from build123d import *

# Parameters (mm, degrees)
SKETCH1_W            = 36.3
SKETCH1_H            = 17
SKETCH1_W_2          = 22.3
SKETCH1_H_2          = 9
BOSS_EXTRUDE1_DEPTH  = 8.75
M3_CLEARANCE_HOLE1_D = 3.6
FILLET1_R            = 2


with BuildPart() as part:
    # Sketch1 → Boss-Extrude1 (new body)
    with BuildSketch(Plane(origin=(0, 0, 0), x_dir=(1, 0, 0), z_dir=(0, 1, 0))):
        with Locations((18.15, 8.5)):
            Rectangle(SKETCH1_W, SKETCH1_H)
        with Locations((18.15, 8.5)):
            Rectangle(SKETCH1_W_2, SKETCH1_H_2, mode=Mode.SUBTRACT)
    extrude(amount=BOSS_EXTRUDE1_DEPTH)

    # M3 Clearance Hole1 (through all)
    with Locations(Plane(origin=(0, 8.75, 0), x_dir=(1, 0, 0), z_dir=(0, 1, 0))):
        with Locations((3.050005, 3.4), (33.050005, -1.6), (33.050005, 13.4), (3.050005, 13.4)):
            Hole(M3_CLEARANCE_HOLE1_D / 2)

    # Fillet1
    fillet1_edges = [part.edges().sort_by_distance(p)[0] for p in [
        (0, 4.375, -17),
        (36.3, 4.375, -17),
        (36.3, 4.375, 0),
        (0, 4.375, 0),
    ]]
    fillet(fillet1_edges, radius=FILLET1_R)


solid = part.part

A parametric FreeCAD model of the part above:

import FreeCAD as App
import Part
import Sketcher

V = App.Vector


def edges_at(feature, points):
    """Names of the edges that pass closest to the given points."""
    edges = feature.Shape.Edges
    near = lambda p: min(range(len(edges)), key=lambda i: edges[i].distToShape(Part.Vertex(*p))[0])
    return sorted({f"Edge{near(p) + 1}" for p in points})


def add_polygon(sketch, points):
    """Adds a closed chain of lines whose ends are joined by coincident constraints."""
    first, n = sketch.GeometryCount, len(points)
    for a, b in zip(points, points[1:] + points[:1]):
        sketch.addGeometry(Part.LineSegment(App.Vector(*a, 0), App.Vector(*b, 0)), False)
    for i in range(n):
        sketch.addConstraint(Sketcher.Constraint("Coincident", first + i, 2, first + (i + 1) % n, 1))

doc = App.newDocument("Part")
params = doc.addObject("Spreadsheet::Sheet", "Params")
for row, (alias, value) in enumerate([
    ("sketch1_height", "17 mm"),
    ("sketch1_height2", "9 mm"),
    ("sketch1_width", "36.3 mm"),
    ("sketch1_width2", "22.3 mm"),
    ("pad1_length", "8.75 mm"),
    ("sketch2_diameter", "3.6 mm"),
    ("hole_diameter", "3.6 mm"),
    ("fillet_radius", "2 mm"),
], start=1):
    params.set(f"A{row}", alias)
    params.set(f"B{row}", "=" + value)
    params.setAlias(f"B{row}", alias)

body = doc.addObject("PartDesign::Body", "Body")

# Sketch on XZ plane
sketch1 = doc.addObject("Sketcher::SketchObject", "Sketch")
body.addObject(sketch1)
sketch1.AttachmentSupport = (doc.XZ_Plane, [""])
sketch1.MapMode = "FlatFace"
add_polygon(sketch1, [(0, -17), (0, 0), (36, 0), (36, -17)])  # lines 0-3
add_polygon(sketch1, [(29, -4), (7, -4), (7, -13), (29, -13)])  # lines 4-7
sketch1.addConstraint([
    Sketcher.Constraint("Vertical", 0),
    Sketcher.Constraint("Horizontal", 1),
    Sketcher.Constraint("Vertical", 2),
    Sketcher.Constraint("Horizontal", 3),
    Sketcher.Constraint("Horizontal", 4),
    Sketcher.Constraint("Vertical", 5),
    Sketcher.Constraint("Horizontal", 6),
    Sketcher.Constraint("Vertical", 7),
    Sketcher.Constraint("Coincident", 0, 2, -1, 1),
    Sketcher.Constraint("DistanceY", 0, 1, 0, 2, 17.0),
    Sketcher.Constraint("DistanceY", 5, 2, 5, 1, 9.0),
    Sketcher.Constraint("DistanceX", 1, 1, 1, 2, 36.3),
    Sketcher.Constraint("DistanceX", 4, 2, 4, 1, 22.3),
    Sketcher.Constraint("DistanceX", -1, 1, 4, 2, 7.0),
    Sketcher.Constraint("DistanceY", 4, 2, -1, 1, 4.0),
])
sketch1.setExpression("Constraints[17]", "Params.sketch1_height")
sketch1.setExpression("Constraints[18]", "Params.sketch1_height2")
sketch1.setExpression("Constraints[19]", "Params.sketch1_width")
sketch1.setExpression("Constraints[20]", "Params.sketch1_width2")
pad1 = doc.addObject("PartDesign::Pad", "Pad")
body.addObject(pad1)
pad1.Profile = sketch1
pad1.setExpression("Length", "Params.pad1_length")
pad1.Reversed = True

# Sketch on XZ plane
sketch2 = doc.addObject("Sketcher::SketchObject", "Sketch001")
body.addObject(sketch2)
sketch2.AttachmentSupport = (doc.XZ_Plane, [""])
sketch2.MapMode = "FlatFace"
sketch2.AttachmentOffset = App.Placement(V(0, 0, -8.75), App.Rotation())
sketch2.addGeometry([
    Part.Circle(V(3.1, -3.4, 0), V(0, 0, 1), 1.8),
    Part.Circle(V(33.1, 1.6, 0), V(0, 0, 1), 1.8),
    Part.Circle(V(33.1, -13.4, 0), V(0, 0, 1), 1.8),
    Part.Circle(V(3.1, -13.4, 0), V(0, 0, 1), 1.8),
], False)
sketch2.addConstraint([
    Sketcher.Constraint("Equal", 0, 1),
    Sketcher.Constraint("Equal", 1, 2),
    Sketcher.Constraint("Equal", 2, 3),
    Sketcher.Constraint("Horizontal", 2, 3, 3, 3),
    Sketcher.Constraint("Vertical", 1, 3, 2, 3),
    Sketcher.Constraint("Vertical", 0, 3, 3, 3),
    Sketcher.Constraint("Diameter", 0, 3.6),
    Sketcher.Constraint("DistanceX", 0, 3, 1, 3, 30.0),
    Sketcher.Constraint("DistanceY", 0, 3, 1, 3, 5.0),
    Sketcher.Constraint("DistanceY", 2, 3, 1, 3, 15.0),
    Sketcher.Constraint("DistanceY", 0, 3, -1, 1, 3.4),
    Sketcher.Constraint("DistanceX", -1, 1, 0, 3, 3.050005),
])
sketch2.setExpression("Constraints[6]", "Params.sketch2_diameter")
doc.recompute()
hole = doc.addObject("PartDesign::Hole", "Hole")
body.addObject(hole)
hole.Profile = sketch2
hole.ThreadType = "None"
hole.setExpression("Diameter", "Params.hole_diameter")
hole.DepthType = "ThroughAll"
hole.Reversed = True
doc.recompute()

fillet = doc.addObject("PartDesign::Fillet", "Fillet")
body.addObject(fillet)
fillet.Base = (hole, edges_at(hole, [
    (0, 4.375, -17),
    (36.3, 4.375, -17),
    (36.3, 4.375, 0),
    (0, 4.375, 0),
]))
fillet.setExpression("Radius", "Params.fillet_radius")

doc.recompute()
